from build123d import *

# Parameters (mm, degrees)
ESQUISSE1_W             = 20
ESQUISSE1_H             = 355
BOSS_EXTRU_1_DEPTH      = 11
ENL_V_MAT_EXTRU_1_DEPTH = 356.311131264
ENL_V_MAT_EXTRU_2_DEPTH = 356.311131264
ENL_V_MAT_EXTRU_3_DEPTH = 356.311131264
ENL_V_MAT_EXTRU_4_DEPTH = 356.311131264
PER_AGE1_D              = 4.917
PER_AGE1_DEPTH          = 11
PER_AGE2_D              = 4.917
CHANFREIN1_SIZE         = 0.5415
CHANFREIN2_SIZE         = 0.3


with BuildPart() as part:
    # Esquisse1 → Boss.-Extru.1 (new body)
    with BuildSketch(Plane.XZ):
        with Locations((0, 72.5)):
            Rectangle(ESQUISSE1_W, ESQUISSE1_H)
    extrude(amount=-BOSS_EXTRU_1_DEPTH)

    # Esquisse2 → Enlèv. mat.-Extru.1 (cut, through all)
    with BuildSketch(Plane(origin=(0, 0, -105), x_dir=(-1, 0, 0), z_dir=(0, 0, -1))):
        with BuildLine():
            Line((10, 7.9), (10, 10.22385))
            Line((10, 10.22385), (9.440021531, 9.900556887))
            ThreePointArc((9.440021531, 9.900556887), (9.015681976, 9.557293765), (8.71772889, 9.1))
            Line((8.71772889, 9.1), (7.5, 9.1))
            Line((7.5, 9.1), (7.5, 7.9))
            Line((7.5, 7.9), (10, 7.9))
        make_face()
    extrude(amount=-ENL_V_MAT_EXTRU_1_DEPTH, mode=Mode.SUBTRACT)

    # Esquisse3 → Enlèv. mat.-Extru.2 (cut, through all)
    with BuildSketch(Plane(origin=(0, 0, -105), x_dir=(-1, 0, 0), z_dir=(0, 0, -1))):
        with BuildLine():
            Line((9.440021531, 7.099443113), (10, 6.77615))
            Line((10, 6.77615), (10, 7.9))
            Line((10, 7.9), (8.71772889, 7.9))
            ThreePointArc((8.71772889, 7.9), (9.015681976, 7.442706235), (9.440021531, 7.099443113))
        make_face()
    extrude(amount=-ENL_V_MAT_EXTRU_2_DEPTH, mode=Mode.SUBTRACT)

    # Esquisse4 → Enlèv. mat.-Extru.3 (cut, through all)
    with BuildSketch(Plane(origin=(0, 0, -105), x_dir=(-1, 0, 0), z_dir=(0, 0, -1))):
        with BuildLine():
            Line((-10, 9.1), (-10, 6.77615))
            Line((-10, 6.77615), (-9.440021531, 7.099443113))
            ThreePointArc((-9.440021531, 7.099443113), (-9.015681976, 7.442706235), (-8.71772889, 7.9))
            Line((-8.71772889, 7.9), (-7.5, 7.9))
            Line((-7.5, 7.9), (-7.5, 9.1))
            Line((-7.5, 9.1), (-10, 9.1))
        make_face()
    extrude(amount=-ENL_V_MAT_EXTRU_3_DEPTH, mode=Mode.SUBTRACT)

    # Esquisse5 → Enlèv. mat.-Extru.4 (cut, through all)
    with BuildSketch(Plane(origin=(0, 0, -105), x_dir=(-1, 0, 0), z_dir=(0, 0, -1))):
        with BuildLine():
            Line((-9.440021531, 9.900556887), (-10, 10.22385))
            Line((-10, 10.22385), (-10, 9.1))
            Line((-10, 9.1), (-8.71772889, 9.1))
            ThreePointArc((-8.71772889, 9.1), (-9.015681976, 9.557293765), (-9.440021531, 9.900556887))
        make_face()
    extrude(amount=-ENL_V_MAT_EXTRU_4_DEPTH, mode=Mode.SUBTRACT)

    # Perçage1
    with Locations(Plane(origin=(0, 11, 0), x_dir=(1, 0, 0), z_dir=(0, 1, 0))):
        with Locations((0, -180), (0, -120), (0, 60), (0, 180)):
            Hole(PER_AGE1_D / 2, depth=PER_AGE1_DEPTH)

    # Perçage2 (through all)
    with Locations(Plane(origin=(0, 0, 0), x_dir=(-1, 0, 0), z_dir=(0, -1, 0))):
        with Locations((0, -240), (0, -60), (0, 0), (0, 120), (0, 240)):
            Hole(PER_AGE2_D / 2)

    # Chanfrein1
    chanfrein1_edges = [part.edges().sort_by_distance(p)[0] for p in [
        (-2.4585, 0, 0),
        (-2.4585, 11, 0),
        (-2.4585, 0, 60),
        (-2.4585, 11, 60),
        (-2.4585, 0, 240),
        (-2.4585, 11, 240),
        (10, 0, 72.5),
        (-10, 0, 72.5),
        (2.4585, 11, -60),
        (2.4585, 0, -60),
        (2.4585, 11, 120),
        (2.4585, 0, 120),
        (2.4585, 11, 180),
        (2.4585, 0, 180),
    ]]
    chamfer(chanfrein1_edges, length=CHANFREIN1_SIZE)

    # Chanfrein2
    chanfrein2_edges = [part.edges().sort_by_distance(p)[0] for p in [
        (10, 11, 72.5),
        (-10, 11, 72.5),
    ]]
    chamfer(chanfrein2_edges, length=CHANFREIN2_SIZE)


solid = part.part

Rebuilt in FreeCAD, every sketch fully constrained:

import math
import FreeCAD as App
import Part
import Sketcher
from FreeCAD import Vector
Q = App.Units.Quantity


def edges_at(feature, points):
    """Names of the edges that pass closest to the given points."""
    edges = feature.Shape.Edges
    near = lambda p: min(range(len(edges)), key=lambda i: edges[i].distToShape(Part.Vertex(*p))[0])
    return sorted({f"Edge{near(p) + 1}" for p in points})


def add_polygon(sketch, points):
    """Adds a closed chain of lines whose ends are joined by coincident constraints."""
    first, n = sketch.GeometryCount, len(points)
    for a, b in zip(points, points[1:] + points[:1]):
        sketch.addGeometry(Part.LineSegment(App.Vector(*a, 0), App.Vector(*b, 0)), False)
    for i in range(n):
        sketch.addConstraint(Sketcher.Constraint("Coincident", first + i, 2, first + (i + 1) % n, 1))

doc = App.newDocument("Part")
body = doc.addObject("PartDesign::Body", "Body")

# Sketch on XZ plane
sketch1 = body.newObject("Sketcher::SketchObject", "Sketch")
sketch1.AttachmentSupport = (doc.getObject("XZ_Plane"), [""])
sketch1.MapMode = "FlatFace"
add_polygon(sketch1, [(-10, 250), (-10, -105), (10, -105), (10, 250)])  # lines 0-3
sketch1.addConstraint([
    Sketcher.Constraint("Vertical", 0),
    Sketcher.Constraint("Horizontal", 1),
    Sketcher.Constraint("Vertical", 2),
    Sketcher.Constraint("Horizontal", 3),
    Sketcher.Constraint("DistanceX", 1, 1, 1, 2, Q("20 mm")),
    Sketcher.Constraint("DistanceY", 0, 2, 0, 1, Q("355 mm")),
    Sketcher.Constraint("DistanceX", 0, 2, -1, 1, Q("10 mm")),
    Sketcher.Constraint("DistanceY", 0, 2, -1, 1, Q("105 mm")),
])
pad1 = body.newObject("PartDesign::Pad", "Pad")
pad1.Profile = sketch1
pad1.Length = 11
pad1.Reversed = True

# Sketch on XY plane
sketch2 = body.newObject("Sketcher::SketchObject", "Sketch001")
sketch2.AttachmentSupport = (doc.getObject("XY_Plane"), [""])
sketch2.MapMode = "FlatFace"
sketch2.AttachmentOffset = App.Placement(Vector(0, 0, -105), App.Rotation())
sketch2.addGeometry([
    Part.LineSegment(Vector(-10, 7.9, 0), Vector(-10, 10.22385, 0)),  # 0
    Part.LineSegment(Vector(-10, 10.22385, 0), Vector(-9.440022, 9.900557, 0)),  # 1
    Part.ArcOfCircle(Part.Circle(Vector(-10.315, 8.385, 0), Vector(0, 0, 1), 1.75), math.radians(24.115126), math.radians(60.000814)),  # 2
    Part.LineSegment(Vector(-8.717729, 9.1, 0), Vector(-7.5, 9.1, 0)),  # 3
    Part.LineSegment(Vector(-7.5, 9.1, 0), Vector(-7.5, 7.9, 0)),  # 4
    Part.LineSegment(Vector(-7.5, 7.9, 0), Vector(-10, 7.9, 0)),  # 5
], False)
sketch2.addConstraint([
    Sketcher.Constraint("Coincident", 0, 2, 1, 1),
    Sketcher.Constraint("Tangent", 1, 2, 2, 2),
    Sketcher.Constraint("Coincident", 2, 1, 3, 1),
    Sketcher.Constraint("Coincident", 3, 2, 4, 1),
    Sketcher.Constraint("Coincident", 4, 2, 5, 1),
    Sketcher.Constraint("Coincident", 5, 2, 0, 1),
    Sketcher.Constraint("Vertical", 0),
    Sketcher.Constraint("Horizontal", 3),
    Sketcher.Constraint("Vertical", 4),
    Sketcher.Constraint("Horizontal", 5),
    Sketcher.Constraint("Radius", 2, Q("1.75 mm")),
    Sketcher.Constraint("DistanceX", 5, 2, 5, 1, Q("2.5 mm")),
    Sketcher.Constraint("DistanceY", 4, 2, 4, 1, Q("1.2 mm")),
    Sketcher.Constraint("DistanceX", 0, 2, -1, 1, Q("10 mm")),
    Sketcher.Constraint("DistanceY", -1, 1, 2, 1, Q("9.1 mm")),
    Sketcher.Constraint("DistanceX", 2, 3, -1, 1, Q("10.315 mm")),
    Sketcher.Constraint("DistanceY", -1, 1, 2, 3, Q("8.385 mm")),
    Sketcher.Constraint("DistanceY", 0, 1, 0, 2, Q("2.32385 mm")),
])
pocket1 = body.newObject("PartDesign::Pocket", "Pocket")
pocket1.Profile = sketch2
pocket1.Type = "ThroughAll"
pocket1.Reversed = True

# Sketch on XY plane
sketch3 = body.newObject("Sketcher::SketchObject", "Sketch002")
sketch3.AttachmentSupport = (doc.getObject("XY_Plane"), [""])
sketch3.MapMode = "FlatFace"
sketch3.AttachmentOffset = App.Placement(Vector(0, 0, -105), App.Rotation())
sketch3.addGeometry([
    Part.LineSegment(Vector(-9.440022, 7.099443, 0), Vector(-10, 6.77615, 0)),
    Part.LineSegment(Vector(-10, 6.77615, 0), Vector(-10, 7.9, 0)),
    Part.LineSegment(Vector(-10, 7.9, 0), Vector(-8.717729, 7.9, 0)),
    Part.ArcOfCircle(Part.Circle(Vector(-10.315, 8.615, 0), Vector(0, 0, 1), 1.75), math.radians(-60.000814), math.radians(-24.115126)),
], False)
sketch3.addConstraint([
    Sketcher.Constraint("Coincident", 0, 2, 1, 1),
    Sketcher.Constraint("Coincident", 1, 2, 2, 1),
    Sketcher.Constraint("Coincident", 2, 2, 3, 2),
    Sketcher.Constraint("Tangent", 3, 1, 0, 1),
    Sketcher.Constraint("Vertical", 1),
    Sketcher.Constraint("Horizontal", 2),
    Sketcher.Constraint("Radius", 3, Q("1.75 mm")),
    Sketcher.Constraint("DistanceX", 0, 2, -1, 1, Q("10 mm")),
    Sketcher.Constraint("DistanceY", -1, 1, 1, 2, Q("7.9 mm")),
    Sketcher.Constraint("DistanceX", 3, 3, -1, 1, Q("10.315 mm")),
    Sketcher.Constraint("DistanceY", -1, 1, 3, 3, Q("8.615 mm")),
    Sketcher.Constraint("DistanceY", 1, 1, 1, 2, Q("1.12385 mm")),
])
pocket2 = body.newObject("PartDesign::Pocket", "Pocket001")
pocket2.Profile = sketch3
pocket2.Type = "ThroughAll"
pocket2.Reversed = True

# Sketch on XY plane
sketch4 = body.newObject("Sketcher::SketchObject", "Sketch003")
sketch4.AttachmentSupport = (doc.getObject("XY_Plane"), [""])
sketch4.MapMode = "FlatFace"
sketch4.AttachmentOffset = App.Placement(Vector(0, 0, -105), App.Rotation())
sketch4.addGeometry([
    Part.LineSegment(Vector(10, 9.1, 0), Vector(10, 6.77615, 0)),  # 0
    Part.LineSegment(Vector(10, 6.77615, 0), Vector(9.440022, 7.099443, 0)),  # 1
    Part.ArcOfCircle(Part.Circle(Vector(10.315, 8.615, 0), Vector(0, 0, 1), 1.75), math.radians(-155.884874), math.radians(-119.999186)),  # 2
    Part.LineSegment(Vector(8.717729, 7.9, 0), Vector(7.5, 7.9, 0)),  # 3
    Part.LineSegment(Vector(7.5, 7.9, 0), Vector(7.5, 9.1, 0)),  # 4
    Part.LineSegment(Vector(7.5, 9.1, 0), Vector(10, 9.1, 0)),  # 5
], False)
sketch4.addConstraint([
    Sketcher.Constraint("Coincident", 0, 2, 1, 1),
    Sketcher.Constraint("Tangent", 1, 2, 2, 2),
    Sketcher.Constraint("Coincident", 2, 1, 3, 1),
    Sketcher.Constraint("Coincident", 3, 2, 4, 1),
    Sketcher.Constraint("Coincident", 4, 2, 5, 1),
    Sketcher.Constraint("Coincident", 5, 2, 0, 1),
    Sketcher.Constraint("Vertical", 0),
    Sketcher.Constraint("Horizontal", 3),
    Sketcher.Constraint("Vertical", 4),
    Sketcher.Constraint("Horizontal", 5),
    Sketcher.Constraint("Radius", 2, Q("1.75 mm")),
    Sketcher.Constraint("DistanceX", 5, 1, 5, 2, Q("2.5 mm")),
    Sketcher.Constraint("DistanceY", 4, 1, 4, 2, Q("1.2 mm")),
    Sketcher.Constraint("DistanceX", -1, 1, 0, 2, Q("10 mm")),
    Sketcher.Constraint("DistanceY", -1, 1, 2, 1, Q("7.9 mm")),
    Sketcher.Constraint("DistanceX", -1, 1, 2, 3, Q("10.315 mm")),
    Sketcher.Constraint("DistanceY", -1, 1, 2, 3, Q("8.615 mm")),
    Sketcher.Constraint("DistanceY", 0, 2, 0, 1, Q("2.32385 mm")),
])
pocket3 = body.newObject("PartDesign::Pocket", "Pocket002")
pocket3.Profile = sketch4
pocket3.Type = "ThroughAll"
pocket3.Reversed = True

# Sketch on XY plane
sketch5 = body.newObject("Sketcher::SketchObject", "Sketch004")
sketch5.AttachmentSupport = (doc.getObject("XY_Plane"), [""])
sketch5.MapMode = "FlatFace"
sketch5.AttachmentOffset = App.Placement(Vector(0, 0, -105), App.Rotation())
sketch5.addGeometry([
    Part.LineSegment(Vector(9.440022, 9.900557, 0), Vector(10, 10.22385, 0)),
    Part.LineSegment(Vector(10, 10.22385, 0), Vector(10, 9.1, 0)),
    Part.LineSegment(Vector(10, 9.1, 0), Vector(8.717729, 9.1, 0)),
    Part.ArcOfCircle(Part.Circle(Vector(10.315, 8.385, 0), Vector(0, 0, 1), 1.75), math.radians(119.999186), math.radians(155.884874)),
], False)
sketch5.addConstraint([
    Sketcher.Constraint("Coincident", 0, 2, 1, 1),
    Sketcher.Constraint("Coincident", 1, 2, 2, 1),
    Sketcher.Constraint("Coincident", 2, 2, 3, 2),
    Sketcher.Constraint("Tangent", 3, 1, 0, 1),
    Sketcher.Constraint("Vertical", 1),
    Sketcher.Constraint("Horizontal", 2),
    Sketcher.Constraint("Radius", 3, Q("1.75 mm")),
    Sketcher.Constraint("DistanceX", -1, 1, 0, 2, Q("10 mm")),
    Sketcher.Constraint("DistanceY", -1, 1, 1, 2, Q("9.1 mm")),
    Sketcher.Constraint("DistanceX", -1, 1, 3, 3, Q("10.315 mm")),
    Sketcher.Constraint("DistanceY", -1, 1, 3, 3, Q("8.385 mm")),
    Sketcher.Constraint("DistanceY", 1, 2, 1, 1, Q("1.12385 mm")),
])
pocket4 = body.newObject("PartDesign::Pocket", "Pocket003")
pocket4.Profile = sketch5
pocket4.Type = "ThroughAll"
pocket4.Reversed = True

# Sketch on XZ plane
sketch6 = body.newObject("Sketcher::SketchObject", "Sketch005")
sketch6.AttachmentSupport = (doc.getObject("XZ_Plane"), [""])
sketch6.MapMode = "FlatFace"
sketch6.AttachmentOffset = App.Placement(Vector(0, 0, -11), App.Rotation())
sketch6.addGeometry([
    Part.Circle(Vector(0, 180, 0), Vector(0, 0, 1), 2.4585),
    Part.Circle(Vector(0, 120, 0), Vector(0, 0, 1), 2.4585),
    Part.Circle(Vector(0, -60, 0), Vector(0, 0, 1), 2.4585),
    Part.Circle(Vector(0, -180, 0), Vector(0, 0, 1), 2.4585),
], False)
sketch6.addConstraint([
    Sketcher.Constraint("Equal", 0, 1),
    Sketcher.Constraint("Equal", 1, 2),
    Sketcher.Constraint("Equal", 2, 3),
    Sketcher.Constraint("Symmetric", 0, 3, 3, 3, -1, 1),
    Sketcher.Constraint("PointOnObject", 0, 3, -2),
    Sketcher.Constraint("PointOnObject", 1, 3, -2),
    Sketcher.Constraint("PointOnObject", 2, 3, -2),
    Sketcher.Constraint("Diameter", 0, Q("4.917 mm")),
    Sketcher.Constraint("DistanceY", -1, 1, 0, 3, Q("180 mm")),
    Sketcher.Constraint("DistanceY", -1, 1, 1, 3, Q("120 mm")),
    Sketcher.Constraint("DistanceY", 2, 3, -1, 1, Q("60 mm")),
])
doc.recompute()
hole = body.newObject("PartDesign::Hole", "Hole")
hole.Profile = sketch6
hole.ThreadType = "None"
hole.Diameter = 4.917
hole.DepthType = "Dimension"
hole.Depth = 11
hole.DrillPoint = "Flat"
hole.Reversed = True

# Sketch on XZ plane
sketch7 = body.newObject("Sketcher::SketchObject", "Sketch006")
sketch7.AttachmentSupport = (doc.getObject("XZ_Plane"), [""])
sketch7.MapMode = "FlatFace"
sketch7.addGeometry([
    Part.Circle(Vector(0, 240, 0), Vector(0, 0, 1), 2.4585),  # 0
    Part.Circle(Vector(0, 60, 0), Vector(0, 0, 1), 2.4585),  # 1
    Part.Circle(Vector(0, 0, 0), Vector(0, 0, 1), 2.4585),  # 2
    Part.Circle(Vector(0, -120, 0), Vector(0, 0, 1), 2.4585),  # 3
    Part.Circle(Vector(0, -240, 0), Vector(0, 0, 1), 2.4585),  # 4
], False)
sketch7.addConstraint([
    Sketcher.Constraint("Coincident", 2, 3, -1, 1),
    Sketcher.Constraint("Equal", 0, 1),
    Sketcher.Constraint("Equal", 1, 2),
    Sketcher.Constraint("Equal", 2, 3),
    Sketcher.Constraint("Equal", 3, 4),
    Sketcher.Constraint("Symmetric", 0, 3, 4, 3, -1, 1),
    Sketcher.Constraint("PointOnObject", 0, 3, -2),
    Sketcher.Constraint("PointOnObject", 1, 3, -2),
    Sketcher.Constraint("PointOnObject", 3, 3, -2),
    Sketcher.Constraint("Diameter", 0, Q("4.917 mm")),
    Sketcher.Constraint("DistanceY", -1, 1, 0, 3, Q("240 mm")),
    Sketcher.Constraint("DistanceY", -1, 1, 1, 3, Q("60 mm")),
    Sketcher.Constraint("DistanceY", 3, 3, -1, 1, Q("120 mm")),
])
doc.recompute()
hole2 = body.newObject("PartDesign::Hole", "Hole001")
hole2.Profile = sketch7
hole2.ThreadType = "None"
hole2.Diameter = 4.917
hole2.DepthType = "ThroughAll"
doc.recompute()

chamfer = body.newObject("PartDesign::Chamfer", "Chamfer")
chamfer.Base = (hole2, edges_at(hole2, [
    (-2.458, 0, 0),
    (-2.458, 11, 0),
    (-2.458, 0, 60),
    (-2.458, 11, 60),
    (-2.458, 0, 240),
    (-2.458, 11, 240),
    (10, 0, 72.5),
    (-10, 0, 72.5),
    (2.458, 11, -60),
    (2.458, 0, -60),
    (2.458, 11, 120),
    (2.458, 0, 120),
    (2.458, 11, 180),
    (2.458, 0, 180),
]))
chamfer.Size = 0.5415
doc.recompute()

chamfer2 = body.newObject("PartDesign::Chamfer", "Chamfer001")
chamfer2.Base = (chamfer, edges_at(chamfer, [(10, 11, 72.5), (-10, 11, 72.5)]))
chamfer2.Size = 0.3

doc.recompute()
